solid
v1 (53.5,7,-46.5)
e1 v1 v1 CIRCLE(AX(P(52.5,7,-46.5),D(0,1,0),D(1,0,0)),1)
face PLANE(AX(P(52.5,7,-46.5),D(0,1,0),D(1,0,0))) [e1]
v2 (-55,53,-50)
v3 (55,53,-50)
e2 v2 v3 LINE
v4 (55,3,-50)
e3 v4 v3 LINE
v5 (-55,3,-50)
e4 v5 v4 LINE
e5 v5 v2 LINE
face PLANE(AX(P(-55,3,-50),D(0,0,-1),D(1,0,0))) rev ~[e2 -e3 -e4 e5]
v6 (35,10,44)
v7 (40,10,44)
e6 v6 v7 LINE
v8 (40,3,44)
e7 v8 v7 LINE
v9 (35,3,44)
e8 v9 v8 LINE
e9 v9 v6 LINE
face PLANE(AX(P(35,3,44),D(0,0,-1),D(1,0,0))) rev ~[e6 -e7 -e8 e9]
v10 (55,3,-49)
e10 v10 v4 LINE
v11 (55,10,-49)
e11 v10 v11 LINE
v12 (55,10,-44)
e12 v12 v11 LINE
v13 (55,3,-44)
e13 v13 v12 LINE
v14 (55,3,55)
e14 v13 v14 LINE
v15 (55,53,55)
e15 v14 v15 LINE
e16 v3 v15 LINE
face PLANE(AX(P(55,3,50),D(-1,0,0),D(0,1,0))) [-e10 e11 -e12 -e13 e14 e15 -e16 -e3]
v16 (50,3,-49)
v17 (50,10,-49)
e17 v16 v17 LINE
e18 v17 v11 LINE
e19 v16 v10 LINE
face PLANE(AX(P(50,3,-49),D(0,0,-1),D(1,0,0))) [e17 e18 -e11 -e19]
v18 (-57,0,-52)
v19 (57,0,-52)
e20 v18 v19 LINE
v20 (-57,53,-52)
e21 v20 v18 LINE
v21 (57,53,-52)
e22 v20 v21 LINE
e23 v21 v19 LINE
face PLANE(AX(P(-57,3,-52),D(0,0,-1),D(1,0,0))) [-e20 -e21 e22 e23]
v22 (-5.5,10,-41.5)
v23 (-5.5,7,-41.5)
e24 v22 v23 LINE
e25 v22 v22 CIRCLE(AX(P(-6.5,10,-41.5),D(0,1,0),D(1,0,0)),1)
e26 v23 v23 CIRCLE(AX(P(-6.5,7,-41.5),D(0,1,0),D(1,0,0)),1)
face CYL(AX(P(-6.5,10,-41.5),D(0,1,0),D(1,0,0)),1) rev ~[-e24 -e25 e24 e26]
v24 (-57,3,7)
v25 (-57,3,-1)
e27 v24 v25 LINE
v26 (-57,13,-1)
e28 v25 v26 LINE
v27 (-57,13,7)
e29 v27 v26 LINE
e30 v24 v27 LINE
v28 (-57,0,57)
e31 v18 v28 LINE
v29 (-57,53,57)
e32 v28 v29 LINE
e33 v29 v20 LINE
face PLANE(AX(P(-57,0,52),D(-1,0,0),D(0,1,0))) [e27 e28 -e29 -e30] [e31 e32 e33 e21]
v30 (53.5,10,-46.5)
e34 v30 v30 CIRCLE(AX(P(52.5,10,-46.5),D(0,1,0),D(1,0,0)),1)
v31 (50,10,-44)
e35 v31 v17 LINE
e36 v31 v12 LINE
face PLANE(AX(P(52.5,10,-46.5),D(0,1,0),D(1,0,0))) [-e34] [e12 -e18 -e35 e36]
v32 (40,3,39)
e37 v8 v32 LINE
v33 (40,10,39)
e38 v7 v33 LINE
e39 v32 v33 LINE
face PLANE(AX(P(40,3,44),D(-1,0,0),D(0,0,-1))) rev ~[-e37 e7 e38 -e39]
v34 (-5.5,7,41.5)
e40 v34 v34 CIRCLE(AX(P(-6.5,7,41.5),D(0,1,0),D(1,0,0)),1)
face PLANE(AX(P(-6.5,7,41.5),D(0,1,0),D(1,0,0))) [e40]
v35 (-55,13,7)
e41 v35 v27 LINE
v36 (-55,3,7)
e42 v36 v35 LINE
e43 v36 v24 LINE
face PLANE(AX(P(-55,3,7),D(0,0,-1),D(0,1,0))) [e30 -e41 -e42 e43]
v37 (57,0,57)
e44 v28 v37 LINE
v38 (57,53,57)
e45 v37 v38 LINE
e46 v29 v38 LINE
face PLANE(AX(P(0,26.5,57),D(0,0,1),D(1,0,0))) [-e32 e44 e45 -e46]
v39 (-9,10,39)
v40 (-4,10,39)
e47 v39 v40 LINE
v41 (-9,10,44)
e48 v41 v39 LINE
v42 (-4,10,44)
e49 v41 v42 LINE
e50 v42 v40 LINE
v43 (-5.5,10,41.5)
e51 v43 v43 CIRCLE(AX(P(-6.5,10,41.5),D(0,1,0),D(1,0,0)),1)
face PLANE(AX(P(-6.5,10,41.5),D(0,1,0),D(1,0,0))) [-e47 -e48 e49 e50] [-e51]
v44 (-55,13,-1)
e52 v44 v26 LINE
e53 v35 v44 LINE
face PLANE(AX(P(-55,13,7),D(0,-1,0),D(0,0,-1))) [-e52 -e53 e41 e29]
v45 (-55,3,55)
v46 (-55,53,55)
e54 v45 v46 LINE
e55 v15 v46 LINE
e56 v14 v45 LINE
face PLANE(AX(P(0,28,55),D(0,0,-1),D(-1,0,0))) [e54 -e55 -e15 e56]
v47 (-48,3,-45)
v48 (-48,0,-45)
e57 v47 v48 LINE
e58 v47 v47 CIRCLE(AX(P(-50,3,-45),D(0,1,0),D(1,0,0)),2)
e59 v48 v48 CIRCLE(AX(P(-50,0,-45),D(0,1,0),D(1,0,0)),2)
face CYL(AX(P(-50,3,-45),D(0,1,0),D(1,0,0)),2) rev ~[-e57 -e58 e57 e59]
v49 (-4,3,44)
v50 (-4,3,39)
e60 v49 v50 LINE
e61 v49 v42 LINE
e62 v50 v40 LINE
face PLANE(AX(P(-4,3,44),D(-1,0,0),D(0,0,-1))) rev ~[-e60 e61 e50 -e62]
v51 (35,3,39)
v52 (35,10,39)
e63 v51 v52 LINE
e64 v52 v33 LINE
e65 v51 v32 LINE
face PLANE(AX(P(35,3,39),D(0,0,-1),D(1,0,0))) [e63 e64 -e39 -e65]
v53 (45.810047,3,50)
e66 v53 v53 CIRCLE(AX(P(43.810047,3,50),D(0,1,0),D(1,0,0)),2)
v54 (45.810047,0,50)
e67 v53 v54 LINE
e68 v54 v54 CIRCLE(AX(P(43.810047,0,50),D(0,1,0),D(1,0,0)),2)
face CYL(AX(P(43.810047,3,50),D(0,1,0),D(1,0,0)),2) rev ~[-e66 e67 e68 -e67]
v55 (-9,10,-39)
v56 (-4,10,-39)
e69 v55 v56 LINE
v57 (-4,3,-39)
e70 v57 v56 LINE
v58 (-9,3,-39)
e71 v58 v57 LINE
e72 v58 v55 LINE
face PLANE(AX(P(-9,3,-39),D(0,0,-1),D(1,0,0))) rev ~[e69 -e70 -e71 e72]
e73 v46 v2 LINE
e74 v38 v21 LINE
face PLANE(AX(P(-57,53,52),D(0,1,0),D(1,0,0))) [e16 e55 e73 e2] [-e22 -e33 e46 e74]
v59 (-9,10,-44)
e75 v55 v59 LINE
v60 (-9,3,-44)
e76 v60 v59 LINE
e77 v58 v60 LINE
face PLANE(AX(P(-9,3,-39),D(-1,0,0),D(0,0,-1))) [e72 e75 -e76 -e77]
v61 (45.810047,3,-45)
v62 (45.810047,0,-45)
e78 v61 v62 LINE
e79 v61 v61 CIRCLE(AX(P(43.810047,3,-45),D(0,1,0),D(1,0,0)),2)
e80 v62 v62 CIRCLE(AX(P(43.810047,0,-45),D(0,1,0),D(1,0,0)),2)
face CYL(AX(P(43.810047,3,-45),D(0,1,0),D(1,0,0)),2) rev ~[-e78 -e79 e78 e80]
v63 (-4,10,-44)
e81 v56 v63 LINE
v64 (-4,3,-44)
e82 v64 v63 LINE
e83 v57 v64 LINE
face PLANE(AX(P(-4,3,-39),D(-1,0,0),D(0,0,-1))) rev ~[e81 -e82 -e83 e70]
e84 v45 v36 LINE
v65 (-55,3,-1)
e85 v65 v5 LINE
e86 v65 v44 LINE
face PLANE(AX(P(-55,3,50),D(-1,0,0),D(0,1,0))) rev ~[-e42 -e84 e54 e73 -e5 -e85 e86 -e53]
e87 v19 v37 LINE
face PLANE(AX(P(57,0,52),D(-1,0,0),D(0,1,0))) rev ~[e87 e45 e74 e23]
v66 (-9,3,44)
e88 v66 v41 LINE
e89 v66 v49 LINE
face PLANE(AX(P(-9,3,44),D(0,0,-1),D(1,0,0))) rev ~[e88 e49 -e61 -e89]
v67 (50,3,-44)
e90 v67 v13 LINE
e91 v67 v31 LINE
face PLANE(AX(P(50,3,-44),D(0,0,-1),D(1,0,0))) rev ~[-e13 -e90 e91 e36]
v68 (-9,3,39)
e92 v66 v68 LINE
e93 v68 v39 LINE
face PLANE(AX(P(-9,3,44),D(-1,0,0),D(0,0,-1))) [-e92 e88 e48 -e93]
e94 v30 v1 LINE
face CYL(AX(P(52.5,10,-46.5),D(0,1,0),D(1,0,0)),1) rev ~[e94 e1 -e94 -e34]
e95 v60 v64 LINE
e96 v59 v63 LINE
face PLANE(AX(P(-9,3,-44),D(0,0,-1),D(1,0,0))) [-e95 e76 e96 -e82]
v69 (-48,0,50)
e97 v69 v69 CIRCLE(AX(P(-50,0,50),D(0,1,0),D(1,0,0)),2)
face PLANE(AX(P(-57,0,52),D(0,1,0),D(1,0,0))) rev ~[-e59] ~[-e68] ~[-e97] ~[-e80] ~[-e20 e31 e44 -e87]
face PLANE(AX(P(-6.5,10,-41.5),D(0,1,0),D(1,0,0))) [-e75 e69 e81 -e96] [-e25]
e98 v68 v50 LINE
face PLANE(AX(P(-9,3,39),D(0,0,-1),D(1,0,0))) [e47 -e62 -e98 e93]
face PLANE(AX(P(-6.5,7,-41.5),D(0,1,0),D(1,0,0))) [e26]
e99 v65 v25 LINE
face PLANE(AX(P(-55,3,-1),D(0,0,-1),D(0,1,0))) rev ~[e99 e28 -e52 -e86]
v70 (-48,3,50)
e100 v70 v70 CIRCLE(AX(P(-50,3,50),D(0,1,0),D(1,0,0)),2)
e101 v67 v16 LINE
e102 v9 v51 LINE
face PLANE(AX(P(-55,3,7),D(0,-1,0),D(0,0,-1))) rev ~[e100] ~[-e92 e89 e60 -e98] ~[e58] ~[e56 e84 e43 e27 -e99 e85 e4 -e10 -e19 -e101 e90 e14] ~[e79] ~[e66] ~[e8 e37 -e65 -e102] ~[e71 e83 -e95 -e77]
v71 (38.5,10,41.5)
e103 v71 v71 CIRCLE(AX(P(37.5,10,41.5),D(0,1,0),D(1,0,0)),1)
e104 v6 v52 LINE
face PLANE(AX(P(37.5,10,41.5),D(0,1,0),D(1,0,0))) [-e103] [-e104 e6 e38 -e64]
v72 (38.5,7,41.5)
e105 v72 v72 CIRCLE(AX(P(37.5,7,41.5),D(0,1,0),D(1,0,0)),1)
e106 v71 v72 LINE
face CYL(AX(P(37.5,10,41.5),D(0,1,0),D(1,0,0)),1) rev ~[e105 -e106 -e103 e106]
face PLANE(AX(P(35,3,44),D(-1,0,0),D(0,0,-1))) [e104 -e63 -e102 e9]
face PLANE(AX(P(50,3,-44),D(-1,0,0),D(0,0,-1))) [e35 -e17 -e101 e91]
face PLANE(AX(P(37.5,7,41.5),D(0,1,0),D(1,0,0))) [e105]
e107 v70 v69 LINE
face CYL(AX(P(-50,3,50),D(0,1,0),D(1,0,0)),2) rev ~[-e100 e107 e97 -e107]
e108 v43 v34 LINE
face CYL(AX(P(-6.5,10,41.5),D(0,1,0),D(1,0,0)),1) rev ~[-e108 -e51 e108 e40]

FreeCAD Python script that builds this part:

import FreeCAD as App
import Part
import Sketcher
from FreeCAD import Vector
Q = App.Units.Quantity

doc = App.newDocument("Part")
params = doc.addObject("Spreadsheet::Sheet", "Params")
for row, (alias, value) in enumerate([
    ("sketch1_width", "114 mm"),
    ("sketch1_height", "104 mm"),
    ("pad1_length", "3 mm"),
    ("sketch2_width", "114 mm"),
    ("sketch2_width2", "110 mm"),
    ("sketch2_height", "104 mm"),
    ("sketch2_height2", "100 mm"),
    ("pad2_length", "50 mm"),
    ("sketch3_width", "5 mm"),
    ("pad3_length", "7 mm"),
    ("sketch4_width", "114 mm"),
    ("sketch4_height", "53 mm"),
    ("pad4_length", "5 mm"),
    ("sketch5_width", "110 mm"),
    ("sketch5_height", "50 mm"),
    ("pocket1_length", "5 mm"),
    ("sketch6_width", "10 mm"),
    ("sketch6_height", "8 mm"),
    ("pocket2_length", "2 mm"),
    ("sketch7_diameter", "2 mm"),
    ("pocket3_length", "3 mm"),
    ("sketch8_diameter", "4 mm"),
    ("pocket4_length", "3 mm"),
], start=1):
    params.set(f"A{row}", alias)
    params.set(f"B{row}", "=" + value)
    params.setAlias(f"B{row}", alias)

body = doc.addObject("PartDesign::Body", "Body")

sketch1 = body.newObject("Sketcher::SketchObject", "Sketch")
sketch1.AttachmentSupport = (doc.getObject("XZ_Plane"), [""])
sketch1.MapMode = "FlatFace"
sketch1.addGeometry([
    Part.LineSegment(Vector(-57, -52, 0), Vector(-57, 52, 0)),
    Part.LineSegment(Vector(-57, 52, 0), Vector(57, 52, 0)),
    Part.LineSegment(Vector(57, 52, 0), Vector(57, -52, 0)),
    Part.LineSegment(Vector(57, -52, 0), Vector(-57, -52, 0)),
], False)
sketch1.addConstraint([
    Sketcher.Constraint("Coincident", 0, 2, 1, 1),
    Sketcher.Constraint("Coincident", 1, 2, 2, 1),
    Sketcher.Constraint("Coincident", 2, 2, 3, 1),
    Sketcher.Constraint("Coincident", 3, 2, 0, 1),
    Sketcher.Constraint("Vertical", 0),
    Sketcher.Constraint("Horizontal", 1),
    Sketcher.Constraint("Vertical", 2),
    Sketcher.Constraint("Horizontal", 3),
    Sketcher.Constraint("Symmetric", 0, 2, 2, 2, -1, 1),
    Sketcher.Constraint("DistanceX", 1, 1, 1, 2, Q("114 mm")),
    Sketcher.Constraint("DistanceY", 0, 1, 0, 2, Q("104 mm")),
])
sketch1.setExpression("Constraints[9]", "Params.sketch1_width")
sketch1.setExpression("Constraints[10]", "Params.sketch1_height")
pad1 = body.newObject("PartDesign::Pad", "Pad")
pad1.Profile = sketch1
pad1.setExpression("Length", "Params.pad1_length")
pad1.Reversed = True

sketch2 = body.newObject("Sketcher::SketchObject", "Sketch001")
sketch2.AttachmentSupport = (doc.getObject("XZ_Plane"), [""])
sketch2.MapMode = "FlatFace"
sketch2.AttachmentOffset = App.Placement(Vector(0, 0, -3), App.Rotation())
sketch2.addGeometry([
    Part.LineSegment(Vector(-57, -52, 0), Vector(-57, 52, 0)),
    Part.LineSegment(Vector(-57, 52, 0), Vector(57, 52, 0)),
    Part.LineSegment(Vector(57, 52, 0), Vector(57, -52, 0)),
    Part.LineSegment(Vector(57, -52, 0), Vector(-57, -52, 0)),
    Part.LineSegment(Vector(55, 50, 0), Vector(-55, 50, 0)),
    Part.LineSegment(Vector(-55, 50, 0), Vector(-55, -50, 0)),
    Part.LineSegment(Vector(-55, -50, 0), Vector(55, -50, 0)),
    Part.LineSegment(Vector(55, -50, 0), Vector(55, 50, 0)),
], False)
sketch2.addConstraint([
    Sketcher.Constraint("Coincident", 0, 2, 1, 1),
    Sketcher.Constraint("Coincident", 1, 2, 2, 1),
    Sketcher.Constraint("Coincident", 2, 2, 3, 1),
    Sketcher.Constraint("Coincident", 3, 2, 0, 1),
    Sketcher.Constraint("Coincident", 4, 2, 5, 1),
    Sketcher.Constraint("Coincident", 5, 2, 6, 1),
    Sketcher.Constraint("Coincident", 6, 2, 7, 1),
    Sketcher.Constraint("Coincident", 7, 2, 4, 1),
    Sketcher.Constraint("Vertical", 0),
    Sketcher.Constraint("Horizontal", 1),
    Sketcher.Constraint("Vertical", 2),
    Sketcher.Constraint("Horizontal", 3),
    Sketcher.Constraint("Horizontal", 4),
    Sketcher.Constraint("Vertical", 5),
    Sketcher.Constraint("Horizontal", 6),
    Sketcher.Constraint("Vertical", 7),
    Sketcher.Constraint("Symmetric", 0, 2, 2, 2, -1, 1),
    Sketcher.Constraint("Symmetric", 4, 2, 6, 2, -1, 1),
    Sketcher.Constraint("DistanceX", 1, 1, 1, 2, Q("114 mm")),
    Sketcher.Constraint("DistanceX", 4, 2, 4, 1, Q("110 mm")),
    Sketcher.Constraint("DistanceY", 0, 1, 0, 2, Q("104 mm")),
    Sketcher.Constraint("DistanceY", 5, 2, 5, 1, Q("100 mm")),
])
sketch2.setExpression("Constraints[18]", "Params.sketch2_width")
sketch2.setExpression("Constraints[19]", "Params.sketch2_width2")
sketch2.setExpression("Constraints[20]", "Params.sketch2_height")
sketch2.setExpression("Constraints[21]", "Params.sketch2_height2")
pad2 = body.newObject("PartDesign::Pad", "Pad001")
pad2.Profile = sketch2
pad2.setExpression("Length", "Params.pad2_length")
pad2.Reversed = True

sketch3 = body.newObject("Sketcher::SketchObject", "Sketch002")
sketch3.AttachmentSupport = (doc.getObject("XZ_Plane"), [""])
sketch3.MapMode = "FlatFace"
sketch3.AttachmentOffset = App.Placement(Vector(0, 0, -3), App.Rotation())
sketch3.addGeometry([
    Part.LineSegment(Vector(-9, -44, 0), Vector(-9, -39, 0)),
    Part.LineSegment(Vector(-9, -39, 0), Vector(-4, -39, 0)),
    Part.LineSegment(Vector(-4, -39, 0), Vector(-4, -44, 0)),
    Part.LineSegment(Vector(-4, -44, 0), Vector(-9, -44, 0)),
    Part.LineSegment(Vector(50, -49, 0), Vector(50, -44, 0)),
    Part.LineSegment(Vector(50, -44, 0), Vector(55, -44, 0)),
    Part.LineSegment(Vector(55, -44, 0), Vector(55, -49, 0)),
    Part.LineSegment(Vector(55, -49, 0), Vector(50, -49, 0)),
    Part.LineSegment(Vector(-9, 39, 0), Vector(-9, 44, 0)),
    Part.LineSegment(Vector(-9, 44, 0), Vector(-4, 44, 0)),
    Part.LineSegment(Vector(-4, 44, 0), Vector(-4, 39, 0)),
    Part.LineSegment(Vector(-4, 39, 0), Vector(-9, 39, 0)),
    Part.LineSegment(Vector(35, 39, 0), Vector(35, 44, 0)),
    Part.LineSegment(Vector(35, 44, 0), Vector(40, 44, 0)),
    Part.LineSegment(Vector(40, 44, 0), Vector(40, 39, 0)),
    Part.LineSegment(Vector(40, 39, 0), Vector(35, 39, 0)),
], False)
sketch3.addConstraint([
    Sketcher.Constraint("Coincident", 0, 2, 1, 1),
    Sketcher.Constraint("Coincident", 1, 2, 2, 1),
    Sketcher.Constraint("Coincident", 2, 2, 3, 1),
    Sketcher.Constraint("Coincident", 3, 2, 0, 1),
    Sketcher.Constraint("Coincident", 4, 2, 5, 1),
    Sketcher.Constraint("Coincident", 5, 2, 6, 1),
    Sketcher.Constraint("Coincident", 6, 2, 7, 1),
    Sketcher.Constraint("Coincident", 7, 2, 4, 1),
    Sketcher.Constraint("Coincident", 8, 2, 9, 1),
    Sketcher.Constraint("Coincident", 9, 2, 10, 1),
    Sketcher.Constraint("Coincident", 10, 2, 11, 1),
    Sketcher.Constraint("Coincident", 11, 2, 8, 1),
    Sketcher.Constraint("Coincident", 12, 2, 13, 1),
    Sketcher.Constraint("Coincident", 13, 2, 14, 1),
    Sketcher.Constraint("Coincident", 14, 2, 15, 1),
    Sketcher.Constraint("Coincident", 15, 2, 12, 1),
    Sketcher.Constraint("Vertical", 0),
    Sketcher.Constraint("Horizontal", 1),
    Sketcher.Constraint("Vertical", 2),
    Sketcher.Constraint("Horizontal", 3),
    Sketcher.Constraint("Vertical", 4),
    Sketcher.Constraint("Horizontal", 5),
    Sketcher.Constraint("Vertical", 6),
    Sketcher.Constraint("Horizontal", 7),
    Sketcher.Constraint("Vertical", 8),
    Sketcher.Constraint("Horizontal", 9),
    Sketcher.Constraint("Vertical", 10),
    Sketcher.Constraint("Horizontal", 11),
    Sketcher.Constraint("Vertical", 12),
    Sketcher.Constraint("Horizontal", 13),
    Sketcher.Constraint("Vertical", 14),
    Sketcher.Constraint("Horizontal", 15),
    Sketcher.Constraint("Symmetric", 3, 2, 8, 2, -1),
    Sketcher.Constraint("Symmetric", 1, 2, 10, 2, -1),
    Sketcher.Constraint("Horizontal", 3, 2, 4, 2),
    Sketcher.Constraint("Horizontal", 9, 2, 12, 2),
    Sketcher.Constraint("Horizontal", 11, 2, 14, 2),
    Sketcher.Constraint("Equal", 3, 5),
    Sketcher.Constraint("Equal", 11, 13),
    Sketcher.Constraint("Equal", 15, 0),
    Sketcher.Constraint("Equal", 2, 4),
    Sketcher.Constraint("DistanceX", 1, 1, 1, 2, Q("5 mm")),
    Sketcher.Constraint("DistanceX", 0, 2, -1, 1, Q("9 mm")),
    Sketcher.Constraint("DistanceY", 0, 2, -1, 1, Q("39 mm")),
    Sketcher.Constraint("DistanceX", -1, 1, 4, 2, Q("50 mm")),
    Sketcher.Constraint("DistanceX", -1, 1, 12, 2, Q("35 mm")),
])
sketch3.setExpression("Constraints[41]", "Params.sketch3_width")
pad3 = body.newObject("PartDesign::Pad", "Pad002")
pad3.Profile = sketch3
pad3.setExpression("Length", "Params.pad3_length")
pad3.Reversed = True

sketch4 = body.newObject("Sketcher::SketchObject", "Sketch003")
sketch4.AttachmentSupport = (doc.getObject("XY_Plane"), [""])
sketch4.MapMode = "FlatFace"
sketch4.AttachmentOffset = App.Placement(Vector(0, 0, 52), App.Rotation())
sketch4.addGeometry([
    Part.LineSegment(Vector(-57, 53, 0), Vector(-57, 0, 0)),
    Part.LineSegment(Vector(-57, 0, 0), Vector(57, 0, 0)),
    Part.LineSegment(Vector(57, 0, 0), Vector(57, 53, 0)),
    Part.LineSegment(Vector(57, 53, 0), Vector(-57, 53, 0)),
], False)
sketch4.addConstraint([
    Sketcher.Constraint("Coincident", 0, 2, 1, 1),
    Sketcher.Constraint("Coincident", 1, 2, 2, 1),
    Sketcher.Constraint("Coincident", 2, 2, 3, 1),
    Sketcher.Constraint("Coincident", 3, 2, 0, 1),
    Sketcher.Constraint("Vertical", 0),
    Sketcher.Constraint("Horizontal", 1),
    Sketcher.Constraint("Vertical", 2),
    Sketcher.Constraint("Horizontal", 3),
    Sketcher.Constraint("Symmetric", 0, 2, 1, 2, -1, 1),
    Sketcher.Constraint("DistanceX", 1, 1, 1, 2, Q("114 mm")),
    Sketcher.Constraint("DistanceY", 0, 2, 0, 1, Q("53 mm")),
])
sketch4.setExpression("Constraints[9]", "Params.sketch4_width")
sketch4.setExpression("Constraints[10]", "Params.sketch4_height")
pad4 = body.newObject("PartDesign::Pad", "Pad003")
pad4.Profile = sketch4
pad4.setExpression("Length", "Params.pad4_length")

sketch5 = body.newObject("Sketcher::SketchObject", "Sketch004")
sketch5.AttachmentSupport = (doc.getObject("XY_Plane"), [""])
sketch5.MapMode = "FlatFace"
sketch5.AttachmentOffset = App.Placement(Vector(0, 0, 50), App.Rotation())
sketch5.addGeometry([
    Part.LineSegment(Vector(55, 53, 0), Vector(55, 3, 0)),
    Part.LineSegment(Vector(55, 3, 0), Vector(-55, 3, 0)),
    Part.LineSegment(Vector(-55, 3, 0), Vector(-55, 53, 0)),
    Part.LineSegment(Vector(-55, 53, 0), Vector(55, 53, 0)),
], False)
sketch5.addConstraint([
    Sketcher.Constraint("Coincident", 0, 2, 1, 1),
    Sketcher.Constraint("Coincident", 1, 2, 2, 1),
    Sketcher.Constraint("Coincident", 2, 2, 3, 1),
    Sketcher.Constraint("Coincident", 3, 2, 0, 1),
    Sketcher.Constraint("Vertical", 0),
    Sketcher.Constraint("Horizontal", 1),
    Sketcher.Constraint("Vertical", 2),
    Sketcher.Constraint("Horizontal", 3),
    Sketcher.Constraint("DistanceX", 1, 2, 1, 1, Q("110 mm")),
    Sketcher.Constraint("DistanceY", 0, 2, 0, 1, Q("50 mm")),
    Sketcher.Constraint("DistanceX", -1, 1, 0, 2, Q("55 mm")),
    Sketcher.Constraint("DistanceY", -1, 1, 0, 2, Q("3 mm")),
])
sketch5.setExpression("Constraints[8]", "Params.sketch5_width")
sketch5.setExpression("Constraints[9]", "Params.sketch5_height")
pocket1 = body.newObject("PartDesign::Pocket", "Pocket")
pocket1.Profile = sketch5
pocket1.setExpression("Length", "Params.pocket1_length")
pocket1.Reversed = True

sketch6 = body.newObject("Sketcher::SketchObject", "Sketch005")
sketch6.AttachmentSupport = (doc.getObject("YZ_Plane"), [""])
sketch6.MapMode = "FlatFace"
sketch6.AttachmentOffset = App.Placement(Vector(0, 0, -55), App.Rotation())
sketch6.addGeometry([
    Part.LineSegment(Vector(13, 7, 0), Vector(3, 7, 0)),
    Part.LineSegment(Vector(3, 7, 0), Vector(3, -1, 0)),
    Part.LineSegment(Vector(3, -1, 0), Vector(13, -1, 0)),
    Part.LineSegment(Vector(13, -1, 0), Vector(13, 7, 0)),
], False)
sketch6.addConstraint([
    Sketcher.Constraint("Coincident", 0, 2, 1, 1),
    Sketcher.Constraint("Coincident", 1, 2, 2, 1),
    Sketcher.Constraint("Coincident", 2, 2, 3, 1),
    Sketcher.Constraint("Coincident", 3, 2, 0, 1),
    Sketcher.Constraint("Horizontal", 0),
    Sketcher.Constraint("Vertical", 1),
    Sketcher.Constraint("Horizontal", 2),
    Sketcher.Constraint("Vertical", 3),
    Sketcher.Constraint("DistanceX", 0, 2, 0, 1, Q("10 mm")),
    Sketcher.Constraint("DistanceY", 1, 2, 1, 1, Q("8 mm")),
    Sketcher.Constraint("DistanceX", -1, 1, 0, 2, Q("3 mm")),
    Sketcher.Constraint("DistanceY", -1, 1, 0, 2, Q("7 mm")),
])
sketch6.setExpression("Constraints[8]", "Params.sketch6_width")
sketch6.setExpression("Constraints[9]", "Params.sketch6_height")
pocket2 = body.newObject("PartDesign::Pocket", "Pocket001")
pocket2.Profile = sketch6
pocket2.setExpression("Length", "Params.pocket2_length")

sketch7 = body.newObject("Sketcher::SketchObject", "Sketch006")
sketch7.AttachmentSupport = (doc.getObject("XZ_Plane"), [""])
sketch7.MapMode = "FlatFace"
sketch7.AttachmentOffset = App.Placement(Vector(0, 0, -10), App.Rotation())
sketch7.addGeometry([
    Part.Circle(Vector(-6.5, -41.5, 0), Vector(0, 0, 1), 1),
    Part.Circle(Vector(-6.5, 41.5, 0), Vector(0, 0, 1), 1),
    Part.Circle(Vector(37.5, 41.5, 0), Vector(0, 0, 1), 1),
    Part.Circle(Vector(52.5, -46.5, 0), Vector(0, 0, 1), 1),
], False)
sketch7.addConstraint([
    Sketcher.Constraint("Equal", 0, 1),
    Sketcher.Constraint("Equal", 1, 2),
    Sketcher.Constraint("Equal", 2, 3),
    Sketcher.Constraint("Symmetric", 0, 3, 1, 3, -1),
    Sketcher.Constraint("Horizontal", 1, 3, 2, 3),
    Sketcher.Constraint("Diameter", 0, Q("2 mm")),
    Sketcher.Constraint("DistanceY", 0, 3, 1, 3, Q("83 mm")),
    Sketcher.Constraint("DistanceX", 1, 3, 2, 3, Q("44 mm")),
    Sketcher.Constraint("DistanceX", 0, 3, 3, 3, Q("59 mm")),
    Sketcher.Constraint("DistanceY", 3, 3, 0, 3, Q("5 mm")),
    Sketcher.Constraint("DistanceX", 0, 3, -1, 1, Q("6.5 mm")),
])
sketch7.setExpression("Constraints[5]", "Params.sketch7_diameter")
pocket3 = body.newObject("PartDesign::Pocket", "Pocket002")
pocket3.Profile = sketch7
pocket3.setExpression("Length", "Params.pocket3_length")
pocket3.Reversed = True

sketch8 = body.newObject("Sketcher::SketchObject", "Sketch007")
sketch8.AttachmentSupport = (doc.getObject("XZ_Plane"), [""])
sketch8.MapMode = "FlatFace"
sketch8.AttachmentOffset = App.Placement(Vector(0, 0, -3), App.Rotation())
sketch8.addGeometry([
    Part.Circle(Vector(-50, -45, 0), Vector(0, 0, 1), 2),
    Part.Circle(Vector(-50, 50, 0), Vector(0, 0, 1), 2),
    Part.Circle(Vector(43.8, 50, 0), Vector(0, 0, 1), 2),
    Part.Circle(Vector(43.8, -45, 0), Vector(0, 0, 1), 2),
], False)
sketch8.addConstraint([
    Sketcher.Constraint("Equal", 0, 1),
    Sketcher.Constraint("Equal", 1, 2),
    Sketcher.Constraint("Equal", 2, 3),
    Sketcher.Constraint("Horizontal", 1, 3, 2, 3),
    Sketcher.Constraint("Horizontal", 0, 3, 3, 3),
    Sketcher.Constraint("Vertical", 0, 3, 1, 3),
    Sketcher.Constraint("Vertical", 2, 3, 3, 3),
    Sketcher.Constraint("Diameter", 0, Q("4 mm")),
    Sketcher.Constraint("DistanceX", 0, 3, -1, 1, Q("50 mm")),
    Sketcher.Constraint("DistanceY", 0, 3, -1, 1, Q("45 mm")),
    Sketcher.Constraint("DistanceY", -1, 1, 1, 3, Q("50 mm")),
    Sketcher.Constraint("DistanceX", -1, 1, 2, 3, Q("43.810047 mm")),
])
sketch8.setExpression("Constraints[7]", "Params.sketch8_diameter")
pocket4 = body.newObject("PartDesign::Pocket", "Pocket003")
pocket4.Profile = sketch8
pocket4.setExpression("Length", "Params.pocket4_length")
pocket4.Reversed = True

doc.recompute()
